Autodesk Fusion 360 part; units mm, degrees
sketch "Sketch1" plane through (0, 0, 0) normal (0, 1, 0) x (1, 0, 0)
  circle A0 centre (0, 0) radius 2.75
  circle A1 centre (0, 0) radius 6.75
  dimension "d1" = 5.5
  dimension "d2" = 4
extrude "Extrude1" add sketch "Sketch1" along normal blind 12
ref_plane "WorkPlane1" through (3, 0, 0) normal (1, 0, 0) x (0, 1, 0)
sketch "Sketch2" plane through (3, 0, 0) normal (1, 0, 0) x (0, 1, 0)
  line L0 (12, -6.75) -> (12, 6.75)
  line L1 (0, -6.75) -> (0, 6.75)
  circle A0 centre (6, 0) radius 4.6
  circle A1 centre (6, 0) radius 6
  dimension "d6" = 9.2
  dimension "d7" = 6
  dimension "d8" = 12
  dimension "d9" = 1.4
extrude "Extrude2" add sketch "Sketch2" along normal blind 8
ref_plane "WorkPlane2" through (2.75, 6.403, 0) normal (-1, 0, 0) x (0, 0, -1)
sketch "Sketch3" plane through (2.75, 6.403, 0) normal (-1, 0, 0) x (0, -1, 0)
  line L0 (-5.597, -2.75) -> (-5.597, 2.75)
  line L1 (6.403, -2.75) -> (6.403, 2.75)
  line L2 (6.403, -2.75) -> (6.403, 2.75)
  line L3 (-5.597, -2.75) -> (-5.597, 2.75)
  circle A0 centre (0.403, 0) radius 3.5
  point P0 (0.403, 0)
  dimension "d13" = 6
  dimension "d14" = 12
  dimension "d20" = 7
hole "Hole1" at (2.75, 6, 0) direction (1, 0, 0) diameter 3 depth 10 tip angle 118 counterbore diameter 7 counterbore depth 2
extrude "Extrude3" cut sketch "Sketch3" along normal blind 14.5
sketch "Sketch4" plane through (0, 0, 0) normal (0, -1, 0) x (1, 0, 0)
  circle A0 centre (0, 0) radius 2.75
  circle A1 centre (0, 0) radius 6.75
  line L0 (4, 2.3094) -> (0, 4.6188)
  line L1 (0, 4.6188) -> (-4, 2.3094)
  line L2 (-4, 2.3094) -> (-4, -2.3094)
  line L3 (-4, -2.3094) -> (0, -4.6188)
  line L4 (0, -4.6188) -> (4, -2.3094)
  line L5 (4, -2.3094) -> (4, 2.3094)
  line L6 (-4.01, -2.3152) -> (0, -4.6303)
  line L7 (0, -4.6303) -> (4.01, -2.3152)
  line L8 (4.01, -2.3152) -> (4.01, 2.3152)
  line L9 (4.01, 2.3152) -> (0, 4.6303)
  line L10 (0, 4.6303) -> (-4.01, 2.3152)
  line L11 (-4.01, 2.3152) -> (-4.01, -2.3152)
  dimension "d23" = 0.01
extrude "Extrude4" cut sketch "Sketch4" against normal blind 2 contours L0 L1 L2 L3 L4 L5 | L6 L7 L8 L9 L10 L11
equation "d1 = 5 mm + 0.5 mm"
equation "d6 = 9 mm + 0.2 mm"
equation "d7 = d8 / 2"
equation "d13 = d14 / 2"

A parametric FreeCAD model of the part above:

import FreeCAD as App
import Part
import Sketcher

V = App.Vector
Q = App.Units.Quantity


def add_polygon(sketch, points):
    """Adds a closed chain of lines whose ends are joined by coincident constraints."""
    first, n = sketch.GeometryCount, len(points)
    for a, b in zip(points, points[1:] + points[:1]):
        sketch.addGeometry(Part.LineSegment(App.Vector(*a, 0), App.Vector(*b, 0)), False)
    for i in range(n):
        sketch.addConstraint(Sketcher.Constraint("Coincident", first + i, 2, first + (i + 1) % n, 1))

doc = App.newDocument("Part")
params = doc.addObject("Spreadsheet::Sheet", "Params")
for row, (alias, value) in enumerate([
    ("sketch1_diameter", "5.5 mm"),
    ("sketch1_diameter2", "13.5 mm"),
    ("pad1_length", "12 mm"),
    ("sketch2_diameter", "12 mm"),
    ("sketch2_diameter2", "9.2 mm"),
    ("pad2_length", "8 mm"),
    ("sketch3_diameter", "3 mm"),
    ("hole_diameter", "3 mm"),
    ("hole_depth", "10 mm"),
    ("hole_cbore_diameter", "7 mm"),
    ("hole_cbore_depth", "2 mm"),
    ("sketch4_diameter", "7 mm"),
    ("pocket1_length", "14.5 mm"),
    ("sketch5_diameter", "5.5 mm"),
    ("pocket2_length", "2 mm"),
], start=1):
    params.set(f"A{row}", alias)
    params.set(f"B{row}", "=" + value)
    params.setAlias(f"B{row}", alias)

body = doc.addObject("PartDesign::Body", "Body")

# Sketch on XZ plane
sketch1 = body.newObject("Sketcher::SketchObject", "Sketch")
sketch1.AttachmentSupport = (doc.getObject("XZ_Plane"), [""])
sketch1.MapMode = "FlatFace"
sketch1.addGeometry(Part.Circle(V(0, 0, 0), V(0, 0, 1), 6.8), False)
sketch1.addGeometry(Part.Circle(V(0, 0, 0), V(0, 0, 1), 2.8), False)
sketch1.addConstraint(Sketcher.Constraint("Coincident", 0, 3, -1, 1))
sketch1.addConstraint(Sketcher.Constraint("Coincident", 1, 3, -1, 1))
sketch1.addConstraint(Sketcher.Constraint("Diameter", 1, 5.5))
sketch1.addConstraint(Sketcher.Constraint("Diameter", 0, 13.5))
sketch1.setExpression("Constraints[2]", "Params.sketch1_diameter")
sketch1.setExpression("Constraints[3]", "Params.sketch1_diameter2")
pad1 = body.newObject("PartDesign::Pad", "Pad")
pad1.Profile = sketch1
pad1.setExpression("Length", "Params.pad1_length")
pad1.Reversed = True

# Sketch on YZ plane
sketch2 = body.newObject("Sketcher::SketchObject", "Sketch001")
sketch2.AttachmentSupport = (doc.getObject("YZ_Plane"), [""])
sketch2.MapMode = "FlatFace"
sketch2.AttachmentOffset = App.Placement(V(0, 0, 3), App.Rotation())
sketch2.addGeometry(Part.Circle(V(6, 0, 0), V(0, 0, 1), 6), False)
sketch2.addGeometry(Part.Circle(V(6, 0, 0), V(0, 0, 1), 4.6), False)
sketch2.addConstraint(Sketcher.Constraint("Coincident", 1, 3, 0, 3))
sketch2.addConstraint(Sketcher.Constraint("PointOnObject", 0, 3, -1))
sketch2.addConstraint(Sketcher.Constraint("Diameter", 0, 12.0))
sketch2.addConstraint(Sketcher.Constraint("Diameter", 1, 9.2))
sketch2.addConstraint(Sketcher.Constraint("DistanceX", -1, 1, 0, 3, 6.0))
sketch2.setExpression("Constraints[2]", "Params.sketch2_diameter")
sketch2.setExpression("Constraints[3]", "Params.sketch2_diameter2")
pad2 = body.newObject("PartDesign::Pad", "Pad001")
pad2.Profile = sketch2
pad2.setExpression("Length", "Params.pad2_length")

# Sketch on YZ plane
sketch3 = body.newObject("Sketcher::SketchObject", "Sketch002")
sketch3.AttachmentSupport = (doc.getObject("YZ_Plane"), [""])
sketch3.MapMode = "FlatFace"
sketch3.AttachmentOffset = App.Placement(V(0, 0, 2.75), App.Rotation())
sketch3.addGeometry(Part.Circle(V(6, 0, 0), V(0, 0, 1), 1.5), False)
sketch3.addConstraint(Sketcher.Constraint("PointOnObject", 0, 3, -1))
sketch3.addConstraint(Sketcher.Constraint("Diameter", 0, 3.0))
sketch3.addConstraint(Sketcher.Constraint("DistanceX", -1, 1, 0, 3, 6.0))
sketch3.setExpression("Constraints[1]", "Params.sketch3_diameter")
doc.recompute()
hole = body.newObject("PartDesign::Hole", "Hole")
hole.Profile = sketch3
hole.ThreadType = "None"
hole.setExpression("Diameter", "Params.hole_diameter")
hole.DepthType = "Dimension"
hole.setExpression("Depth", "Params.hole_depth")
hole.DrillPoint = "Angled"
hole.DrillPointAngle = 118
hole.HoleCutType = "Counterbore"
hole.setExpression("HoleCutDiameter", "Params.hole_cbore_diameter")
hole.setExpression("HoleCutDepth", "Params.hole_cbore_depth")
hole.Reversed = True

# Sketch on YZ plane
sketch4 = body.newObject("Sketcher::SketchObject", "Sketch003")
sketch4.AttachmentSupport = (doc.getObject("YZ_Plane"), [""])
sketch4.MapMode = "FlatFace"
sketch4.AttachmentOffset = App.Placement(V(0, 0, 2.75), App.Rotation())
sketch4.addGeometry(Part.Circle(V(6, 0, 0), V(0, 0, 1), 3.5), False)
sketch4.addConstraint(Sketcher.Constraint("PointOnObject", 0, 3, -1))
sketch4.addConstraint(Sketcher.Constraint("Diameter", 0, 7.0))
sketch4.addConstraint(Sketcher.Constraint("DistanceX", -1, 1, 0, 3, 6.0))
sketch4.setExpression("Constraints[1]", "Params.sketch4_diameter")
pocket1 = body.newObject("PartDesign::Pocket", "Pocket")
pocket1.Profile = sketch4
pocket1.setExpression("Length", "Params.pocket1_length")

# Sketch on XZ plane
sketch5 = body.newObject("Sketcher::SketchObject", "Sketch004")
sketch5.AttachmentSupport = (doc.getObject("XZ_Plane"), [""])
sketch5.MapMode = "FlatFace"
add_polygon(sketch5, [(-4, 2.3), (-4, -2.3), (0, -4.6), (4, -2.3), (4, 2.3), (0, 4.6)])  # lines 0-5
sketch5.addGeometry(Part.Circle(V(0, 0, 0), V(0, 0, 1), 2.8), False)  # 6
sketch5.addConstraint(Sketcher.Constraint("Vertical", 0))
sketch5.addConstraint(Sketcher.Constraint("Vertical", 3))
sketch5.addConstraint(Sketcher.Constraint("Coincident", 6, 3, -1, 1))
sketch5.addConstraint(Sketcher.Constraint("Symmetric", 0, 2, 3, 2, -1, 1))
sketch5.addConstraint(Sketcher.Constraint("Symmetric", 1, 2, 4, 2, -1, 1))
sketch5.addConstraint(Sketcher.Constraint("PointOnObject", 1, 2, -2))
sketch5.addConstraint(Sketcher.Constraint("Parallel", 2, 5))
sketch5.addConstraint(Sketcher.Constraint("Horizontal", 0, 2, 2, 2))
sketch5.addConstraint(Sketcher.Constraint("Diameter", 6, 5.5))
sketch5.addConstraint(Sketcher.Constraint("Angle", 1, Q("-29.9992 deg")))
sketch5.addConstraint(Sketcher.Constraint("DistanceX", 0, 2, -1, 1, 4.01))
sketch5.addConstraint(Sketcher.Constraint("DistanceY", 0, 2, 0, 1, 4.6304))
sketch5.setExpression("Constraints[14]", "Params.sketch5_diameter")
pocket2 = body.newObject("PartDesign::Pocket", "Pocket001")
pocket2.Profile = sketch5
pocket2.setExpression("Length", "Params.pocket2_length")

doc.recompute()
